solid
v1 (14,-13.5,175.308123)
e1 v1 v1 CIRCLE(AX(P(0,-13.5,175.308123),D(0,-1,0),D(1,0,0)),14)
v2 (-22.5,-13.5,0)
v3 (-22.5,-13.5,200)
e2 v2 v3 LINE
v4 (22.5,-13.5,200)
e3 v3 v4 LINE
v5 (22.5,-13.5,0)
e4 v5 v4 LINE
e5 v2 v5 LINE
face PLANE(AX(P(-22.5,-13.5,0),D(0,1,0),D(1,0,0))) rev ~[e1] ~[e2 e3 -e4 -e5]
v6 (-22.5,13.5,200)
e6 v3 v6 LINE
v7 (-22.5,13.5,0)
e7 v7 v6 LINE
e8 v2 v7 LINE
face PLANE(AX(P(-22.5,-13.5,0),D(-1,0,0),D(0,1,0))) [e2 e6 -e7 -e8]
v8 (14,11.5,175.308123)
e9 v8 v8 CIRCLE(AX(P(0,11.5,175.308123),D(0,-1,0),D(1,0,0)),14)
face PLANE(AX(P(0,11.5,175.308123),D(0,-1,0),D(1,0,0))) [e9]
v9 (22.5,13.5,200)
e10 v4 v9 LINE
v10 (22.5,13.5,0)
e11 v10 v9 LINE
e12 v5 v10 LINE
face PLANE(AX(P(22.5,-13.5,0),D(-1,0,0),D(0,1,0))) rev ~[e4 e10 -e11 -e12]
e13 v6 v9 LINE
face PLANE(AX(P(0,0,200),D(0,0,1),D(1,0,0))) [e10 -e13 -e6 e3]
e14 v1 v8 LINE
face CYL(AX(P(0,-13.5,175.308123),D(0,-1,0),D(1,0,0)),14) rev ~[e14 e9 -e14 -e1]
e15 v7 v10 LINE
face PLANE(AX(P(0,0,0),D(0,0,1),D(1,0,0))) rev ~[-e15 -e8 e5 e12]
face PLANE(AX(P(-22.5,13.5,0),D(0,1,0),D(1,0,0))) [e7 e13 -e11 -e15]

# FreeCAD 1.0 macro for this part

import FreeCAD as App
import Part
import Sketcher


def add_polygon(sketch, points):
    """Adds a closed chain of lines whose ends are joined by coincident constraints."""
    first, n = sketch.GeometryCount, len(points)
    for a, b in zip(points, points[1:] + points[:1]):
        sketch.addGeometry(Part.LineSegment(App.Vector(*a, 0), App.Vector(*b, 0)), False)
    for i in range(n):
        sketch.addConstraint(Sketcher.Constraint("Coincident", first + i, 2, first + (i + 1) % n, 1))

doc = App.newDocument("Part")
body = doc.addObject("PartDesign::Body", "Body")

sketch1 = doc.addObject("Sketcher::SketchObject", "Sketch")
body.addObject(sketch1)
sketch1.AttachmentSupport = (doc.XY_Plane, [""])
sketch1.MapMode = "FlatFace"
add_polygon(sketch1, [(-22, 14), (-22, -14), (22, -14), (22, 14)])
sketch1.addConstraint([
    Sketcher.Constraint("Vertical", 0),
    Sketcher.Constraint("Horizontal", 1),
    Sketcher.Constraint("Vertical", 2),
    Sketcher.Constraint("Horizontal", 3),
    Sketcher.Constraint("Symmetric", 0, 2, 2, 2, -1, 1),
    Sketcher.Constraint("DistanceX", 1, 1, 1, 2, 45.0),
    Sketcher.Constraint("DistanceY", 0, 2, 0, 1, 27.0),
])
pad1 = doc.addObject("PartDesign::Pad", "Pad")
body.addObject(pad1)
pad1.Profile = sketch1
pad1.Length = 200

sketch2 = doc.addObject("Sketcher::SketchObject", "Sketch001")
body.addObject(sketch2)
sketch2.AttachmentSupport = (doc.XZ_Plane, [""])
sketch2.MapMode = "FlatFace"
sketch2.AttachmentOffset = App.Placement(App.Vector(0, 0, 13.5), App.Rotation())
sketch2.addGeometry(Part.Circle(App.Vector(0, 175, 0), App.Vector(0, 0, 1), 14), False)
sketch2.addConstraint([
    Sketcher.Constraint("PointOnObject", 0, 3, -2),
    Sketcher.Constraint("Diameter", 0, 28.0),
    Sketcher.Constraint("DistanceY", -1, 1, 0, 3, 175.308123),
])
pocket1 = doc.addObject("PartDesign::Pocket", "Pocket")
body.addObject(pocket1)
pocket1.Profile = sketch2
pocket1.Length = 25

doc.recompute()
